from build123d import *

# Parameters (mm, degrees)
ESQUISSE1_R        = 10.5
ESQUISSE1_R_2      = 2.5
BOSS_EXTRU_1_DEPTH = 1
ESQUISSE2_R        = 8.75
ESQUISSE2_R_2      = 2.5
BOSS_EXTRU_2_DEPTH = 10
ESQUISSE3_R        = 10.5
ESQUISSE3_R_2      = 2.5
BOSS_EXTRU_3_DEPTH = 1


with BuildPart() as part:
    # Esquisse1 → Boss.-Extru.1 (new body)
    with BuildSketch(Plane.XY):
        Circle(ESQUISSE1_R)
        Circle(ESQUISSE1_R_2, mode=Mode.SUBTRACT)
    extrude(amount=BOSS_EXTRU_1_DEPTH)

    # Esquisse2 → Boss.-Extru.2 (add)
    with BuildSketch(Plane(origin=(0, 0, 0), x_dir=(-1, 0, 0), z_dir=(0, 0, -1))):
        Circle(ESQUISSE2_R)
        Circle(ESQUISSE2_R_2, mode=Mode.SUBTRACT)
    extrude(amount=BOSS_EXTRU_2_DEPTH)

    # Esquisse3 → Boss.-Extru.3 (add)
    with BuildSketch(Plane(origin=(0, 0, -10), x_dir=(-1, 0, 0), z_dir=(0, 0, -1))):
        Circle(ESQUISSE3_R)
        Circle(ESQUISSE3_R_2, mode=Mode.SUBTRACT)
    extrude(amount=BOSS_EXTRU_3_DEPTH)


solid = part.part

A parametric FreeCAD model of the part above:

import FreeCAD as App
import Part
import Sketcher

V = App.Vector
Q = App.Units.Quantity

doc = App.newDocument("Part")
body = doc.addObject("PartDesign::Body", "Body")

sketch1 = doc.addObject("Sketcher::SketchObject", "Sketch")
body.addObject(sketch1)
sketch1.AttachmentSupport = (doc.XY_Plane, [""])
sketch1.MapMode = "FlatFace"
sketch1.addGeometry([
    Part.Circle(V(0, 0, 0), V(0, 0, 1), 10.5),
    Part.Circle(V(0, 0, 0), V(0, 0, 1), 2.5),
], False)
sketch1.addConstraint([
    Sketcher.Constraint("Coincident", 0, 3, -1, 1),
    Sketcher.Constraint("Coincident", 1, 3, -1, 1),
    Sketcher.Constraint("Diameter", 0, Q("21 mm")),
    Sketcher.Constraint("Diameter", 1, Q("5 mm")),
])
pad1 = doc.addObject("PartDesign::Pad", "Pad")
body.addObject(pad1)
pad1.Profile = sketch1
pad1.Length = 1

sketch2 = doc.addObject("Sketcher::SketchObject", "Sketch001")
body.addObject(sketch2)
sketch2.AttachmentSupport = (doc.XY_Plane, [""])
sketch2.MapMode = "FlatFace"
sketch2.addGeometry([
    Part.Circle(V(0, 0, 0), V(0, 0, 1), 8.8),
    Part.Circle(V(0, 0, 0), V(0, 0, 1), 2.5),
], False)
sketch2.addConstraint([
    Sketcher.Constraint("Coincident", 0, 3, -1, 1),
    Sketcher.Constraint("Coincident", 1, 3, -1, 1),
    Sketcher.Constraint("Diameter", 1, Q("5 mm")),
    Sketcher.Constraint("Diameter", 0, Q("17.5 mm")),
])
pad2 = doc.addObject("PartDesign::Pad", "Pad001")
body.addObject(pad2)
pad2.Profile = sketch2
pad2.Length = 10
pad2.Reversed = True

sketch3 = doc.addObject("Sketcher::SketchObject", "Sketch002")
body.addObject(sketch3)
sketch3.AttachmentSupport = (doc.XY_Plane, [""])
sketch3.MapMode = "FlatFace"
sketch3.AttachmentOffset = App.Placement(V(0, 0, -10), App.Rotation())
sketch3.addGeometry([
    Part.Circle(V(0, 0, 0), V(0, 0, 1), 10.5),
    Part.Circle(V(0, 0, 0), V(0, 0, 1), 2.5),
], False)
sketch3.addConstraint([
    Sketcher.Constraint("Coincident", 0, 3, -1, 1),
    Sketcher.Constraint("Coincident", 1, 3, -1, 1),
    Sketcher.Constraint("Diameter", 0, Q("21 mm")),
    Sketcher.Constraint("Diameter", 1, Q("5 mm")),
])
pad3 = doc.addObject("PartDesign::Pad", "Pad002")
body.addObject(pad3)
pad3.Profile = sketch3
pad3.Length = 1
pad3.Reversed = True

doc.recompute()
